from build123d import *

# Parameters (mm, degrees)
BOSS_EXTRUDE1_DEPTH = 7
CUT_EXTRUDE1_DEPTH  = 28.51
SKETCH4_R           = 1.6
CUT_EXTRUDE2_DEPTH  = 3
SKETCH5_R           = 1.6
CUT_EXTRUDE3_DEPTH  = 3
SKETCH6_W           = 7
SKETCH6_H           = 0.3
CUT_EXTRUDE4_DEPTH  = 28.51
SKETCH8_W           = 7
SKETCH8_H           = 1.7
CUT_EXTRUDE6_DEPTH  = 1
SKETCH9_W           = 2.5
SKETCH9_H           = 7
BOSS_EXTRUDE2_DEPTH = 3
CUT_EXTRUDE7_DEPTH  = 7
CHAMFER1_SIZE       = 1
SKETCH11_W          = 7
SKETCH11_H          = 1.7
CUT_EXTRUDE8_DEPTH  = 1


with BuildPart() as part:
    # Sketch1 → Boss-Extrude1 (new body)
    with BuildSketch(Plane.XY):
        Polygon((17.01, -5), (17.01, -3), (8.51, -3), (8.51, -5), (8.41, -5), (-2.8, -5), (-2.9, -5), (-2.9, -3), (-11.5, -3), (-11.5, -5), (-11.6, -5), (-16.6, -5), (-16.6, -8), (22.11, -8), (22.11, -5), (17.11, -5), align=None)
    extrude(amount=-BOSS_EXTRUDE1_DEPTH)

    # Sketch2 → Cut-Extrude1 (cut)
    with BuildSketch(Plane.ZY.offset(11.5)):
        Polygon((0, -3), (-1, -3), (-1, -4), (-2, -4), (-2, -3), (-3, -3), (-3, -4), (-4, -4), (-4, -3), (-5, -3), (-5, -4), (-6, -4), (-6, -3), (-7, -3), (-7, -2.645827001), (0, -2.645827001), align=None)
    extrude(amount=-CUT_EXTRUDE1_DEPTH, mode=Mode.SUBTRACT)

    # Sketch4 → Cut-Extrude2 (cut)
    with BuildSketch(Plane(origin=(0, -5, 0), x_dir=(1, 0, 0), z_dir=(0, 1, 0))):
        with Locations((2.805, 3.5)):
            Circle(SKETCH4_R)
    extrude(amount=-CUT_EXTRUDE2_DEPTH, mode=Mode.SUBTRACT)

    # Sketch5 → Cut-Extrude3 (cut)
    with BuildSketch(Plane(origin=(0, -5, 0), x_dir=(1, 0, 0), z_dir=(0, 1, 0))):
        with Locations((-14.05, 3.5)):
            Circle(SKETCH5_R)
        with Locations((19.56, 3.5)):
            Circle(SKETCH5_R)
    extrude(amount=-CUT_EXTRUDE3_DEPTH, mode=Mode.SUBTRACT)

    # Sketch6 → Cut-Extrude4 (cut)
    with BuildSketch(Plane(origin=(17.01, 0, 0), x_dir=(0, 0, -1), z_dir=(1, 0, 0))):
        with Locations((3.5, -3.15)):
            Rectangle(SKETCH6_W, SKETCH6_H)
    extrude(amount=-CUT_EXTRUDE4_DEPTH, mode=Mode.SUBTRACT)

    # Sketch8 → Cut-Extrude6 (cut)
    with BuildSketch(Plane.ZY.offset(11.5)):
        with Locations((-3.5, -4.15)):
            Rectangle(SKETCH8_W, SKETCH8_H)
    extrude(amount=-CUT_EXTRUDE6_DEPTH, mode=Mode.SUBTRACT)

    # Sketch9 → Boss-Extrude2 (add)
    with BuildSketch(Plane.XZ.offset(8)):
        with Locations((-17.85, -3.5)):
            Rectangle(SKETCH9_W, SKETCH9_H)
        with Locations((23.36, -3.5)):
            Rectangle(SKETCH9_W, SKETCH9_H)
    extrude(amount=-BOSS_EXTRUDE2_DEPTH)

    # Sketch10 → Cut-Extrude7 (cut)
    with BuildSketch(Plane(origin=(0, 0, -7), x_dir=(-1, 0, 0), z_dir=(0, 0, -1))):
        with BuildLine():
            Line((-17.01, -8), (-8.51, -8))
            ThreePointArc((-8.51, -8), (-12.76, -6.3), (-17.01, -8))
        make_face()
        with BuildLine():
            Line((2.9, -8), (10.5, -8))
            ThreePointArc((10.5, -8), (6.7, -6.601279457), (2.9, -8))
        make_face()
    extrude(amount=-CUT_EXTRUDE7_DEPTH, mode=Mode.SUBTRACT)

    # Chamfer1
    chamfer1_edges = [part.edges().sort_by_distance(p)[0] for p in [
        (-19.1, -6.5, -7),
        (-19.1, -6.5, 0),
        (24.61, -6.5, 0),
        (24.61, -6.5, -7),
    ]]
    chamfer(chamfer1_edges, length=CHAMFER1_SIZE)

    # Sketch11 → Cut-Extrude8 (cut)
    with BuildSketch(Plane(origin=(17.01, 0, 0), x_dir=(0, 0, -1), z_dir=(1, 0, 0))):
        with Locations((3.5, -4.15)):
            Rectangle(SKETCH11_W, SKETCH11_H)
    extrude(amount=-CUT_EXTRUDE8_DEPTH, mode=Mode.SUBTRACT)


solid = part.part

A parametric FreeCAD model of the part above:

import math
import FreeCAD as App
import Part
import Sketcher


def edges_at(feature, points):
    """Names of the edges that pass closest to the given points."""
    edges = feature.Shape.Edges
    near = lambda p: min(range(len(edges)), key=lambda i: edges[i].distToShape(Part.Vertex(*p))[0])
    return sorted({f"Edge{near(p) + 1}" for p in points})

doc = App.newDocument("Part")
body = doc.addObject("PartDesign::Body", "Body")

# Sketch on XY plane
sketch1 = body.newObject("Sketcher::SketchObject", "Sketch")
sketch1.AttachmentSupport = (doc.getObject("XY_Plane"), [""])
sketch1.MapMode = "FlatFace"
sketch1.addGeometry(Part.LineSegment(App.Vector(17.01, -5, 0), App.Vector(17.01, -3, 0)), False)
sketch1.addGeometry(Part.LineSegment(App.Vector(17.01, -3, 0), App.Vector(8.51, -3, 0)), False)
sketch1.addGeometry(Part.LineSegment(App.Vector(8.51, -3, 0), App.Vector(8.51, -5, 0)), False)
sketch1.addGeometry(Part.LineSegment(App.Vector(8.51, -5, 0), App.Vector(-2.9, -5, 0)), False)
sketch1.addGeometry(Part.LineSegment(App.Vector(-2.9, -5, 0), App.Vector(-2.9, -3, 0)), False)
sketch1.addGeometry(Part.LineSegment(App.Vector(-2.9, -3, 0), App.Vector(-11.5, -3, 0)), False)
sketch1.addGeometry(Part.LineSegment(App.Vector(-11.5, -3, 0), App.Vector(-11.5, -5, 0)), False)
sketch1.addGeometry(Part.LineSegment(App.Vector(-11.5, -5, 0), App.Vector(-16.6, -5, 0)), False)
sketch1.addGeometry(Part.LineSegment(App.Vector(-16.6, -5, 0), App.Vector(-16.6, -8, 0)), False)
sketch1.addGeometry(Part.LineSegment(App.Vector(-16.6, -8, 0), App.Vector(22.11, -8, 0)), False)
sketch1.addGeometry(Part.LineSegment(App.Vector(22.11, -8, 0), App.Vector(22.11, -5, 0)), False)
sketch1.addGeometry(Part.LineSegment(App.Vector(22.11, -5, 0), App.Vector(17.01, -5, 0)), False)
sketch1.addConstraint(Sketcher.Constraint("Coincident", 0, 2, 1, 1))
sketch1.addConstraint(Sketcher.Constraint("Coincident", 1, 2, 2, 1))
sketch1.addConstraint(Sketcher.Constraint("Coincident", 2, 2, 3, 1))
sketch1.addConstraint(Sketcher.Constraint("Coincident", 3, 2, 4, 1))
sketch1.addConstraint(Sketcher.Constraint("Coincident", 4, 2, 5, 1))
sketch1.addConstraint(Sketcher.Constraint("Coincident", 5, 2, 6, 1))
sketch1.addConstraint(Sketcher.Constraint("Coincident", 6, 2, 7, 1))
sketch1.addConstraint(Sketcher.Constraint("Coincident", 7, 2, 8, 1))
sketch1.addConstraint(Sketcher.Constraint("Coincident", 8, 2, 9, 1))
sketch1.addConstraint(Sketcher.Constraint("Coincident", 9, 2, 10, 1))
sketch1.addConstraint(Sketcher.Constraint("Coincident", 10, 2, 11, 1))
sketch1.addConstraint(Sketcher.Constraint("Coincident", 11, 2, 0, 1))
sketch1.addConstraint(Sketcher.Constraint("Vertical", 0))
sketch1.addConstraint(Sketcher.Constraint("Horizontal", 1))
sketch1.addConstraint(Sketcher.Constraint("Vertical", 2))
sketch1.addConstraint(Sketcher.Constraint("Horizontal", 3))
sketch1.addConstraint(Sketcher.Constraint("Vertical", 4))
sketch1.addConstraint(Sketcher.Constraint("Horizontal", 5))
sketch1.addConstraint(Sketcher.Constraint("Vertical", 6))
sketch1.addConstraint(Sketcher.Constraint("Horizontal", 7))
sketch1.addConstraint(Sketcher.Constraint("Vertical", 8))
sketch1.addConstraint(Sketcher.Constraint("Horizontal", 9))
sketch1.addConstraint(Sketcher.Constraint("Vertical", 10))
sketch1.addConstraint(Sketcher.Constraint("Horizontal", 11))
sketch1.addConstraint(Sketcher.Constraint("Horizontal", 1, 2, 4, 2))
sketch1.addConstraint(Sketcher.Constraint("Horizontal", 3, 2, 6, 2))
sketch1.addConstraint(Sketcher.Constraint("Horizontal", 7, 2, 10, 2))
sketch1.addConstraint(Sketcher.Constraint("Equal", 7, 11))
sketch1.addConstraint(Sketcher.Constraint("DistanceY", 0, 1, 0, 2, 2.0))
sketch1.addConstraint(Sketcher.Constraint("DistanceY", 8, 2, 8, 1, 3.0))
sketch1.addConstraint(Sketcher.Constraint("DistanceX", 1, 2, 1, 1, 8.5))
sketch1.addConstraint(Sketcher.Constraint("DistanceX", 5, 2, 5, 1, 8.6))
sketch1.addConstraint(Sketcher.Constraint("DistanceX", 7, 2, 7, 1, 5.1))
sketch1.addConstraint(Sketcher.Constraint("DistanceY", 0, 2, -1, 1, 3.0))
sketch1.addConstraint(Sketcher.Constraint("DistanceX", 3, 2, 3, 1, 11.41))
sketch1.addConstraint(Sketcher.Constraint("DistanceX", 3, 2, -1, 1, 2.9))
pad1 = body.newObject("PartDesign::Pad", "Pad")
pad1.Profile = sketch1
pad1.Length = 7
pad1.Reversed = True

# Sketch on YZ plane
sketch2 = body.newObject("Sketcher::SketchObject", "Sketch001")
sketch2.AttachmentSupport = (doc.getObject("YZ_Plane"), [""])
sketch2.MapMode = "FlatFace"
sketch2.AttachmentOffset = App.Placement(App.Vector(0, 0, -11.5), App.Rotation())
sketch2.addGeometry(Part.LineSegment(App.Vector(-3, -1, 0), App.Vector(-3, 0, 0)), False)
sketch2.addGeometry(Part.LineSegment(App.Vector(-3, 0, 0), App.Vector(-2.645827, 0, 0)), False)
sketch2.addGeometry(Part.LineSegment(App.Vector(-2.645827, 0, 0), App.Vector(-2.645827, -7, 0)), False)
sketch2.addGeometry(Part.LineSegment(App.Vector(-2.645827, -7, 0), App.Vector(-3, -7, 0)), False)
sketch2.addGeometry(Part.LineSegment(App.Vector(-3, -7, 0), App.Vector(-3, -6, 0)), False)
sketch2.addGeometry(Part.LineSegment(App.Vector(-3, -6, 0), App.Vector(-4, -6, 0)), False)
sketch2.addGeometry(Part.LineSegment(App.Vector(-4, -6, 0), App.Vector(-4, -5, 0)), False)
sketch2.addGeometry(Part.LineSegment(App.Vector(-4, -5, 0), App.Vector(-3, -5, 0)), False)
sketch2.addGeometry(Part.LineSegment(App.Vector(-3, -5, 0), App.Vector(-3, -4, 0)), False)
sketch2.addGeometry(Part.LineSegment(App.Vector(-3, -4, 0), App.Vector(-4, -4, 0)), False)
sketch2.addGeometry(Part.LineSegment(App.Vector(-4, -4, 0), App.Vector(-4, -3, 0)), False)
sketch2.addGeometry(Part.LineSegment(App.Vector(-4, -3, 0), App.Vector(-3, -3, 0)), False)
sketch2.addGeometry(Part.LineSegment(App.Vector(-3, -3, 0), App.Vector(-3, -2, 0)), False)
sketch2.addGeometry(Part.LineSegment(App.Vector(-3, -2, 0), App.Vector(-4, -2, 0)), False)
sketch2.addGeometry(Part.LineSegment(App.Vector(-4, -2, 0), App.Vector(-4, -1, 0)), False)
sketch2.addGeometry(Part.LineSegment(App.Vector(-4, -1, 0), App.Vector(-3, -1, 0)), False)
sketch2.addConstraint(Sketcher.Constraint("Coincident", 0, 2, 1, 1))
sketch2.addConstraint(Sketcher.Constraint("Coincident", 1, 2, 2, 1))
sketch2.addConstraint(Sketcher.Constraint("Coincident", 2, 2, 3, 1))
sketch2.addConstraint(Sketcher.Constraint("Coincident", 3, 2, 4, 1))
sketch2.addConstraint(Sketcher.Constraint("Coincident", 4, 2, 5, 1))
sketch2.addConstraint(Sketcher.Constraint("Coincident", 5, 2, 6, 1))
sketch2.addConstraint(Sketcher.Constraint("Coincident", 6, 2, 7, 1))
sketch2.addConstraint(Sketcher.Constraint("Coincident", 7, 2, 8, 1))
sketch2.addConstraint(Sketcher.Constraint("Coincident", 8, 2, 9, 1))
sketch2.addConstraint(Sketcher.Constraint("Coincident", 9, 2, 10, 1))
sketch2.addConstraint(Sketcher.Constraint("Coincident", 10, 2, 11, 1))
sketch2.addConstraint(Sketcher.Constraint("Coincident", 11, 2, 12, 1))
sketch2.addConstraint(Sketcher.Constraint("Coincident", 12, 2, 13, 1))
sketch2.addConstraint(Sketcher.Constraint("Coincident", 13, 2, 14, 1))
sketch2.addConstraint(Sketcher.Constraint("Coincident", 14, 2, 15, 1))
sketch2.addConstraint(Sketcher.Constraint("Coincident", 15, 2, 0, 1))
sketch2.addConstraint(Sketcher.Constraint("Vertical", 0))
sketch2.addConstraint(Sketcher.Constraint("Horizontal", 1))
sketch2.addConstraint(Sketcher.Constraint("Vertical", 2))
sketch2.addConstraint(Sketcher.Constraint("Horizontal", 3))
sketch2.addConstraint(Sketcher.Constraint("Vertical", 4))
sketch2.addConstraint(Sketcher.Constraint("Horizontal", 5))
sketch2.addConstraint(Sketcher.Constraint("Vertical", 6))
sketch2.addConstraint(Sketcher.Constraint("Horizontal", 7))
sketch2.addConstraint(Sketcher.Constraint("Vertical", 8))
sketch2.addConstraint(Sketcher.Constraint("Horizontal", 9))
sketch2.addConstraint(Sketcher.Constraint("Vertical", 10))
sketch2.addConstraint(Sketcher.Constraint("Horizontal", 11))
sketch2.addConstraint(Sketcher.Constraint("Vertical", 12))
sketch2.addConstraint(Sketcher.Constraint("Horizontal", 13))
sketch2.addConstraint(Sketcher.Constraint("Vertical", 14))
sketch2.addConstraint(Sketcher.Constraint("Horizontal", 15))
sketch2.addConstraint(Sketcher.Constraint("PointOnObject", 0, 2, -1))
sketch2.addConstraint(Sketcher.Constraint("Vertical", 0, 2, 3, 2))
sketch2.addConstraint(Sketcher.Constraint("Vertical", 4, 2, 7, 2))
sketch2.addConstraint(Sketcher.Constraint("Vertical", 6, 2, 9, 2))
sketch2.addConstraint(Sketcher.Constraint("Vertical", 8, 2, 11, 2))
sketch2.addConstraint(Sketcher.Constraint("Vertical", 10, 2, 13, 2))
sketch2.addConstraint(Sketcher.Constraint("Equal", 15, 0))
sketch2.addConstraint(Sketcher.Constraint("Equal", 0, 4))
sketch2.addConstraint(Sketcher.Constraint("Equal", 4, 6))
sketch2.addConstraint(Sketcher.Constraint("Equal", 6, 8))
sketch2.addConstraint(Sketcher.Constraint("Equal", 8, 10))
sketch2.addConstraint(Sketcher.Constraint("Equal", 10, 12))
sketch2.addConstraint(Sketcher.Constraint("Equal", 12, 14))
sketch2.addConstraint(Sketcher.Constraint("DistanceX", 5, 2, 5, 1, 1.0))
sketch2.addConstraint(Sketcher.Constraint("DistanceX", 0, 2, -1, 1, 3.0))
sketch2.addConstraint(Sketcher.Constraint("DistanceX", 1, 1, 1, 2, 0.354173))
pocket1 = body.newObject("PartDesign::Pocket", "Pocket")
pocket1.Profile = sketch2
pocket1.Length = 28.51
pocket1.Reversed = True

# Sketch on XZ plane
sketch3 = body.newObject("Sketcher::SketchObject", "Sketch002")
sketch3.AttachmentSupport = (doc.getObject("XZ_Plane"), [""])
sketch3.MapMode = "FlatFace"
sketch3.AttachmentOffset = App.Placement(App.Vector(0, 0, 5), App.Rotation())
sketch3.addGeometry(Part.Circle(App.Vector(2.805, -3.5, 0), App.Vector(0, 0, 1), 1.6), False)
sketch3.addConstraint(Sketcher.Constraint("Diameter", 0, 3.2))
sketch3.addConstraint(Sketcher.Constraint("DistanceY", 0, 3, -1, 1, 3.5))
sketch3.addConstraint(Sketcher.Constraint("DistanceX", -1, 1, 0, 3, 2.805))
pocket2 = body.newObject("PartDesign::Pocket", "Pocket001")
pocket2.Profile = sketch3
pocket2.Length = 3
pocket2.Reversed = True

# Sketch on XZ plane
sketch4 = body.newObject("Sketcher::SketchObject", "Sketch003")
sketch4.AttachmentSupport = (doc.getObject("XZ_Plane"), [""])
sketch4.MapMode = "FlatFace"
sketch4.AttachmentOffset = App.Placement(App.Vector(0, 0, 5), App.Rotation())
sketch4.addGeometry(Part.Circle(App.Vector(-14.05, -3.5, 0), App.Vector(0, 0, 1), 1.6), False)
sketch4.addGeometry(Part.Circle(App.Vector(19.56, -3.5, 0), App.Vector(0, 0, 1), 1.6), False)
sketch4.addConstraint(Sketcher.Constraint("Equal", 0, 1))
sketch4.addConstraint(Sketcher.Constraint("Horizontal", 0, 3, 1, 3))
sketch4.addConstraint(Sketcher.Constraint("Diameter", 0, 3.2))
sketch4.addConstraint(Sketcher.Constraint("DistanceY", 0, 3, -1, 1, 3.5))
sketch4.addConstraint(Sketcher.Constraint("DistanceX", 0, 3, -1, 1, 14.05))
sketch4.addConstraint(Sketcher.Constraint("DistanceX", -1, 1, 1, 3, 19.56))
pocket3 = body.newObject("PartDesign::Pocket", "Pocket002")
pocket3.Profile = sketch4
pocket3.Length = 3
pocket3.Reversed = True

# Sketch on YZ plane
sketch5 = body.newObject("Sketcher::SketchObject", "Sketch004")
sketch5.AttachmentSupport = (doc.getObject("YZ_Plane"), [""])
sketch5.MapMode = "FlatFace"
sketch5.AttachmentOffset = App.Placement(App.Vector(0, 0, 17.01), App.Rotation())
sketch5.addGeometry(Part.LineSegment(App.Vector(-3, 0, 0), App.Vector(-3.3, 0, 0)), False)
sketch5.addGeometry(Part.LineSegment(App.Vector(-3.3, 0, 0), App.Vector(-3.3, -7, 0)), False)
sketch5.addGeometry(Part.LineSegment(App.Vector(-3.3, -7, 0), App.Vector(-3, -7, 0)), False)
sketch5.addGeometry(Part.LineSegment(App.Vector(-3, -7, 0), App.Vector(-3, 0, 0)), False)
sketch5.addConstraint(Sketcher.Constraint("Coincident", 0, 2, 1, 1))
sketch5.addConstraint(Sketcher.Constraint("Coincident", 1, 2, 2, 1))
sketch5.addConstraint(Sketcher.Constraint("Coincident", 2, 2, 3, 1))
sketch5.addConstraint(Sketcher.Constraint("Coincident", 3, 2, 0, 1))
sketch5.addConstraint(Sketcher.Constraint("Horizontal", 0))
sketch5.addConstraint(Sketcher.Constraint("Vertical", 1))
sketch5.addConstraint(Sketcher.Constraint("Horizontal", 2))
sketch5.addConstraint(Sketcher.Constraint("Vertical", 3))
sketch5.addConstraint(Sketcher.Constraint("PointOnObject", 0, 2, -1))
sketch5.addConstraint(Sketcher.Constraint("DistanceY", 1, 2, 1, 1, 7.0))
sketch5.addConstraint(Sketcher.Constraint("DistanceX", 0, 2, 0, 1, 0.3))
sketch5.addConstraint(Sketcher.Constraint("DistanceX", 2, 2, -1, 1, 3.0))
pocket4 = body.newObject("PartDesign::Pocket", "Pocket003")
pocket4.Profile = sketch5
pocket4.Length = 28.51

# Sketch on YZ plane
sketch6 = body.newObject("Sketcher::SketchObject", "Sketch005")
sketch6.AttachmentSupport = (doc.getObject("YZ_Plane"), [""])
sketch6.MapMode = "FlatFace"
sketch6.AttachmentOffset = App.Placement(App.Vector(0, 0, -11.5), App.Rotation())
sketch6.addGeometry(Part.LineSegment(App.Vector(-3.3, -7, 0), App.Vector(-5, -7, 0)), False)
sketch6.addGeometry(Part.LineSegment(App.Vector(-5, -7, 0), App.Vector(-5, 0, 0)), False)
sketch6.addGeometry(Part.LineSegment(App.Vector(-5, 0, 0), App.Vector(-3.3, 0, 0)), False)
sketch6.addGeometry(Part.LineSegment(App.Vector(-3.3, 0, 0), App.Vector(-3.3, -7, 0)), False)
sketch6.addConstraint(Sketcher.Constraint("Coincident", 0, 2, 1, 1))
sketch6.addConstraint(Sketcher.Constraint("Coincident", 1, 2, 2, 1))
sketch6.addConstraint(Sketcher.Constraint("Coincident", 2, 2, 3, 1))
sketch6.addConstraint(Sketcher.Constraint("Coincident", 3, 2, 0, 1))
sketch6.addConstraint(Sketcher.Constraint("Horizontal", 0))
sketch6.addConstraint(Sketcher.Constraint("Vertical", 1))
sketch6.addConstraint(Sketcher.Constraint("Horizontal", 2))
sketch6.addConstraint(Sketcher.Constraint("Vertical", 3))
sketch6.addConstraint(Sketcher.Constraint("PointOnObject", 1, 2, -1))
sketch6.addConstraint(Sketcher.Constraint("DistanceY", 1, 1, 1, 2, 7.0))
sketch6.addConstraint(Sketcher.Constraint("DistanceX", 0, 2, 0, 1, 1.7))
sketch6.addConstraint(Sketcher.Constraint("DistanceX", 0, 2, -1, 1, 5.0))
pocket5 = body.newObject("PartDesign::Pocket", "Pocket004")
pocket5.Profile = sketch6
pocket5.Length = 1
pocket5.Reversed = True

# Sketch on XZ plane
sketch7 = body.newObject("Sketcher::SketchObject", "Sketch006")
sketch7.AttachmentSupport = (doc.getObject("XZ_Plane"), [""])
sketch7.MapMode = "FlatFace"
sketch7.AttachmentOffset = App.Placement(App.Vector(0, 0, 8), App.Rotation())
sketch7.addGeometry(Part.LineSegment(App.Vector(-19.1, 0, 0), App.Vector(-19.1, -7, 0)), False)
sketch7.addGeometry(Part.LineSegment(App.Vector(-19.1, -7, 0), App.Vector(-16.6, -7, 0)), False)
sketch7.addGeometry(Part.LineSegment(App.Vector(-16.6, -7, 0), App.Vector(-16.6, 0, 0)), False)
sketch7.addGeometry(Part.LineSegment(App.Vector(-16.6, 0, 0), App.Vector(-19.1, 0, 0)), False)
sketch7.addGeometry(Part.LineSegment(App.Vector(22.11, 0, 0), App.Vector(22.11, -7, 0)), False)
sketch7.addGeometry(Part.LineSegment(App.Vector(22.11, -7, 0), App.Vector(24.61, -7, 0)), False)
sketch7.addGeometry(Part.LineSegment(App.Vector(24.61, -7, 0), App.Vector(24.61, 0, 0)), False)
sketch7.addGeometry(Part.LineSegment(App.Vector(24.61, 0, 0), App.Vector(22.11, 0, 0)), False)
sketch7.addConstraint(Sketcher.Constraint("Coincident", 0, 2, 1, 1))
sketch7.addConstraint(Sketcher.Constraint("Coincident", 1, 2, 2, 1))
sketch7.addConstraint(Sketcher.Constraint("Coincident", 2, 2, 3, 1))
sketch7.addConstraint(Sketcher.Constraint("Coincident", 3, 2, 0, 1))
sketch7.addConstraint(Sketcher.Constraint("Coincident", 4, 2, 5, 1))
sketch7.addConstraint(Sketcher.Constraint("Coincident", 5, 2, 6, 1))
sketch7.addConstraint(Sketcher.Constraint("Coincident", 6, 2, 7, 1))
sketch7.addConstraint(Sketcher.Constraint("Coincident", 7, 2, 4, 1))
sketch7.addConstraint(Sketcher.Constraint("Vertical", 0))
sketch7.addConstraint(Sketcher.Constraint("Horizontal", 1))
sketch7.addConstraint(Sketcher.Constraint("Vertical", 2))
sketch7.addConstraint(Sketcher.Constraint("Horizontal", 3))
sketch7.addConstraint(Sketcher.Constraint("Vertical", 4))
sketch7.addConstraint(Sketcher.Constraint("Horizontal", 5))
sketch7.addConstraint(Sketcher.Constraint("Vertical", 6))
sketch7.addConstraint(Sketcher.Constraint("Horizontal", 7))
sketch7.addConstraint(Sketcher.Constraint("PointOnObject", 2, 2, -1))
sketch7.addConstraint(Sketcher.Constraint("PointOnObject", 6, 2, -1))
sketch7.addConstraint(Sketcher.Constraint("Horizontal", 1, 2, 4, 2))
sketch7.addConstraint(Sketcher.Constraint("Equal", 3, 5))
sketch7.addConstraint(Sketcher.Constraint("DistanceY", 0, 2, 0, 1, 7.0))
sketch7.addConstraint(Sketcher.Constraint("DistanceX", 1, 1, 1, 2, 2.5))
sketch7.addConstraint(Sketcher.Constraint("DistanceX", 0, 2, -1, 1, 19.1))
sketch7.addConstraint(Sketcher.Constraint("DistanceX", -1, 1, 4, 2, 22.11))
pad2 = body.newObject("PartDesign::Pad", "Pad001")
pad2.Profile = sketch7
pad2.Length = 3
pad2.Reversed = True

# Sketch on XY plane
sketch8 = body.newObject("Sketcher::SketchObject", "Sketch007")
sketch8.AttachmentSupport = (doc.getObject("XY_Plane"), [""])
sketch8.MapMode = "FlatFace"
sketch8.AttachmentOffset = App.Placement(App.Vector(0, 0, -7), App.Rotation())
sketch8.addGeometry(Part.LineSegment(App.Vector(17.01, -8, 0), App.Vector(8.51, -8, 0)), False)
sketch8.addGeometry(Part.ArcOfCircle(Part.Circle(App.Vector(12.76, -12.4625, 0), App.Vector(0, 0, 1), 6.1625), math.radians(46.397181), math.radians(133.602819)), False)
sketch8.addGeometry(Part.LineSegment(App.Vector(-2.9, -8, 0), App.Vector(-10.5, -8, 0)), False)
sketch8.addGeometry(Part.ArcOfCircle(Part.Circle(App.Vector(-6.7, -12.4625, 0), App.Vector(0, 0, 1), 5.861221), math.radians(49.584257), math.radians(130.415743)), False)
sketch8.addConstraint(Sketcher.Constraint("Coincident", 0, 1, 1, 1))
sketch8.addConstraint(Sketcher.Constraint("Coincident", 1, 2, 0, 2))
sketch8.addConstraint(Sketcher.Constraint("Coincident", 2, 1, 3, 1))
sketch8.addConstraint(Sketcher.Constraint("Coincident", 3, 2, 2, 2))
sketch8.addConstraint(Sketcher.Constraint("Horizontal", 0))
sketch8.addConstraint(Sketcher.Constraint("Horizontal", 2))
sketch8.addConstraint(Sketcher.Constraint("Horizontal", 1, 3, 3, 3))
sketch8.addConstraint(Sketcher.Constraint("Horizontal", 1, 2, 2, 1))
sketch8.addConstraint(Sketcher.Constraint("DistanceX", 0, 2, 0, 1, 8.5))
sketch8.addConstraint(Sketcher.Constraint("DistanceX", 2, 2, 2, 1, 7.6))
sketch8.addConstraint(Sketcher.Constraint("DistanceY", 0, 1, -1, 1, 8.0))
sketch8.addConstraint(Sketcher.Constraint("DistanceX", 3, 3, -1, 1, 6.7))
sketch8.addConstraint(Sketcher.Constraint("Radius", 1, 6.1625))
sketch8.addConstraint(Sketcher.Constraint("DistanceX", -1, 1, 1, 3, 12.76))
pocket6 = body.newObject("PartDesign::Pocket", "Pocket005")
pocket6.Profile = sketch8
pocket6.Length = 7
pocket6.Reversed = True
doc.recompute()

chamfer = body.newObject("PartDesign::Chamfer", "Chamfer")
chamfer.Base = (pocket6, edges_at(pocket6, [
    (-19.1, -6.5, -7),
    (-19.1, -6.5, 0),
    (24.61, -6.5, 0),
    (24.61, -6.5, -7),
]))
chamfer.Size = 1

# Sketch on YZ plane
sketch9 = body.newObject("Sketcher::SketchObject", "Sketch008")
sketch9.AttachmentSupport = (doc.getObject("YZ_Plane"), [""])
sketch9.MapMode = "FlatFace"
sketch9.AttachmentOffset = App.Placement(App.Vector(0, 0, 17.01), App.Rotation())
sketch9.addGeometry(Part.LineSegment(App.Vector(-3.3, 0, 0), App.Vector(-5, 0, 0)), False)
sketch9.addGeometry(Part.LineSegment(App.Vector(-5, 0, 0), App.Vector(-5, -7, 0)), False)
sketch9.addGeometry(Part.LineSegment(App.Vector(-5, -7, 0), App.Vector(-3.3, -7, 0)), False)
sketch9.addGeometry(Part.LineSegment(App.Vector(-3.3, -7, 0), App.Vector(-3.3, 0, 0)), False)
sketch9.addConstraint(Sketcher.Constraint("Coincident", 0, 2, 1, 1))
sketch9.addConstraint(Sketcher.Constraint("Coincident", 1, 2, 2, 1))
sketch9.addConstraint(Sketcher.Constraint("Coincident", 2, 2, 3, 1))
sketch9.addConstraint(Sketcher.Constraint("Coincident", 3, 2, 0, 1))
sketch9.addConstraint(Sketcher.Constraint("Horizontal", 0))
sketch9.addConstraint(Sketcher.Constraint("Vertical", 1))
sketch9.addConstraint(Sketcher.Constraint("Horizontal", 2))
sketch9.addConstraint(Sketcher.Constraint("Vertical", 3))
sketch9.addConstraint(Sketcher.Constraint("PointOnObject", 0, 2, -1))
sketch9.addConstraint(Sketcher.Constraint("DistanceY", 1, 2, 1, 1, 7.0))
sketch9.addConstraint(Sketcher.Constraint("DistanceX", 0, 2, 0, 1, 1.7))
sketch9.addConstraint(Sketcher.Constraint("DistanceX", 0, 2, -1, 1, 5.0))
pocket7 = body.newObject("PartDesign::Pocket", "Pocket006")
pocket7.Profile = sketch9
pocket7.Length = 1

doc.recompute()
